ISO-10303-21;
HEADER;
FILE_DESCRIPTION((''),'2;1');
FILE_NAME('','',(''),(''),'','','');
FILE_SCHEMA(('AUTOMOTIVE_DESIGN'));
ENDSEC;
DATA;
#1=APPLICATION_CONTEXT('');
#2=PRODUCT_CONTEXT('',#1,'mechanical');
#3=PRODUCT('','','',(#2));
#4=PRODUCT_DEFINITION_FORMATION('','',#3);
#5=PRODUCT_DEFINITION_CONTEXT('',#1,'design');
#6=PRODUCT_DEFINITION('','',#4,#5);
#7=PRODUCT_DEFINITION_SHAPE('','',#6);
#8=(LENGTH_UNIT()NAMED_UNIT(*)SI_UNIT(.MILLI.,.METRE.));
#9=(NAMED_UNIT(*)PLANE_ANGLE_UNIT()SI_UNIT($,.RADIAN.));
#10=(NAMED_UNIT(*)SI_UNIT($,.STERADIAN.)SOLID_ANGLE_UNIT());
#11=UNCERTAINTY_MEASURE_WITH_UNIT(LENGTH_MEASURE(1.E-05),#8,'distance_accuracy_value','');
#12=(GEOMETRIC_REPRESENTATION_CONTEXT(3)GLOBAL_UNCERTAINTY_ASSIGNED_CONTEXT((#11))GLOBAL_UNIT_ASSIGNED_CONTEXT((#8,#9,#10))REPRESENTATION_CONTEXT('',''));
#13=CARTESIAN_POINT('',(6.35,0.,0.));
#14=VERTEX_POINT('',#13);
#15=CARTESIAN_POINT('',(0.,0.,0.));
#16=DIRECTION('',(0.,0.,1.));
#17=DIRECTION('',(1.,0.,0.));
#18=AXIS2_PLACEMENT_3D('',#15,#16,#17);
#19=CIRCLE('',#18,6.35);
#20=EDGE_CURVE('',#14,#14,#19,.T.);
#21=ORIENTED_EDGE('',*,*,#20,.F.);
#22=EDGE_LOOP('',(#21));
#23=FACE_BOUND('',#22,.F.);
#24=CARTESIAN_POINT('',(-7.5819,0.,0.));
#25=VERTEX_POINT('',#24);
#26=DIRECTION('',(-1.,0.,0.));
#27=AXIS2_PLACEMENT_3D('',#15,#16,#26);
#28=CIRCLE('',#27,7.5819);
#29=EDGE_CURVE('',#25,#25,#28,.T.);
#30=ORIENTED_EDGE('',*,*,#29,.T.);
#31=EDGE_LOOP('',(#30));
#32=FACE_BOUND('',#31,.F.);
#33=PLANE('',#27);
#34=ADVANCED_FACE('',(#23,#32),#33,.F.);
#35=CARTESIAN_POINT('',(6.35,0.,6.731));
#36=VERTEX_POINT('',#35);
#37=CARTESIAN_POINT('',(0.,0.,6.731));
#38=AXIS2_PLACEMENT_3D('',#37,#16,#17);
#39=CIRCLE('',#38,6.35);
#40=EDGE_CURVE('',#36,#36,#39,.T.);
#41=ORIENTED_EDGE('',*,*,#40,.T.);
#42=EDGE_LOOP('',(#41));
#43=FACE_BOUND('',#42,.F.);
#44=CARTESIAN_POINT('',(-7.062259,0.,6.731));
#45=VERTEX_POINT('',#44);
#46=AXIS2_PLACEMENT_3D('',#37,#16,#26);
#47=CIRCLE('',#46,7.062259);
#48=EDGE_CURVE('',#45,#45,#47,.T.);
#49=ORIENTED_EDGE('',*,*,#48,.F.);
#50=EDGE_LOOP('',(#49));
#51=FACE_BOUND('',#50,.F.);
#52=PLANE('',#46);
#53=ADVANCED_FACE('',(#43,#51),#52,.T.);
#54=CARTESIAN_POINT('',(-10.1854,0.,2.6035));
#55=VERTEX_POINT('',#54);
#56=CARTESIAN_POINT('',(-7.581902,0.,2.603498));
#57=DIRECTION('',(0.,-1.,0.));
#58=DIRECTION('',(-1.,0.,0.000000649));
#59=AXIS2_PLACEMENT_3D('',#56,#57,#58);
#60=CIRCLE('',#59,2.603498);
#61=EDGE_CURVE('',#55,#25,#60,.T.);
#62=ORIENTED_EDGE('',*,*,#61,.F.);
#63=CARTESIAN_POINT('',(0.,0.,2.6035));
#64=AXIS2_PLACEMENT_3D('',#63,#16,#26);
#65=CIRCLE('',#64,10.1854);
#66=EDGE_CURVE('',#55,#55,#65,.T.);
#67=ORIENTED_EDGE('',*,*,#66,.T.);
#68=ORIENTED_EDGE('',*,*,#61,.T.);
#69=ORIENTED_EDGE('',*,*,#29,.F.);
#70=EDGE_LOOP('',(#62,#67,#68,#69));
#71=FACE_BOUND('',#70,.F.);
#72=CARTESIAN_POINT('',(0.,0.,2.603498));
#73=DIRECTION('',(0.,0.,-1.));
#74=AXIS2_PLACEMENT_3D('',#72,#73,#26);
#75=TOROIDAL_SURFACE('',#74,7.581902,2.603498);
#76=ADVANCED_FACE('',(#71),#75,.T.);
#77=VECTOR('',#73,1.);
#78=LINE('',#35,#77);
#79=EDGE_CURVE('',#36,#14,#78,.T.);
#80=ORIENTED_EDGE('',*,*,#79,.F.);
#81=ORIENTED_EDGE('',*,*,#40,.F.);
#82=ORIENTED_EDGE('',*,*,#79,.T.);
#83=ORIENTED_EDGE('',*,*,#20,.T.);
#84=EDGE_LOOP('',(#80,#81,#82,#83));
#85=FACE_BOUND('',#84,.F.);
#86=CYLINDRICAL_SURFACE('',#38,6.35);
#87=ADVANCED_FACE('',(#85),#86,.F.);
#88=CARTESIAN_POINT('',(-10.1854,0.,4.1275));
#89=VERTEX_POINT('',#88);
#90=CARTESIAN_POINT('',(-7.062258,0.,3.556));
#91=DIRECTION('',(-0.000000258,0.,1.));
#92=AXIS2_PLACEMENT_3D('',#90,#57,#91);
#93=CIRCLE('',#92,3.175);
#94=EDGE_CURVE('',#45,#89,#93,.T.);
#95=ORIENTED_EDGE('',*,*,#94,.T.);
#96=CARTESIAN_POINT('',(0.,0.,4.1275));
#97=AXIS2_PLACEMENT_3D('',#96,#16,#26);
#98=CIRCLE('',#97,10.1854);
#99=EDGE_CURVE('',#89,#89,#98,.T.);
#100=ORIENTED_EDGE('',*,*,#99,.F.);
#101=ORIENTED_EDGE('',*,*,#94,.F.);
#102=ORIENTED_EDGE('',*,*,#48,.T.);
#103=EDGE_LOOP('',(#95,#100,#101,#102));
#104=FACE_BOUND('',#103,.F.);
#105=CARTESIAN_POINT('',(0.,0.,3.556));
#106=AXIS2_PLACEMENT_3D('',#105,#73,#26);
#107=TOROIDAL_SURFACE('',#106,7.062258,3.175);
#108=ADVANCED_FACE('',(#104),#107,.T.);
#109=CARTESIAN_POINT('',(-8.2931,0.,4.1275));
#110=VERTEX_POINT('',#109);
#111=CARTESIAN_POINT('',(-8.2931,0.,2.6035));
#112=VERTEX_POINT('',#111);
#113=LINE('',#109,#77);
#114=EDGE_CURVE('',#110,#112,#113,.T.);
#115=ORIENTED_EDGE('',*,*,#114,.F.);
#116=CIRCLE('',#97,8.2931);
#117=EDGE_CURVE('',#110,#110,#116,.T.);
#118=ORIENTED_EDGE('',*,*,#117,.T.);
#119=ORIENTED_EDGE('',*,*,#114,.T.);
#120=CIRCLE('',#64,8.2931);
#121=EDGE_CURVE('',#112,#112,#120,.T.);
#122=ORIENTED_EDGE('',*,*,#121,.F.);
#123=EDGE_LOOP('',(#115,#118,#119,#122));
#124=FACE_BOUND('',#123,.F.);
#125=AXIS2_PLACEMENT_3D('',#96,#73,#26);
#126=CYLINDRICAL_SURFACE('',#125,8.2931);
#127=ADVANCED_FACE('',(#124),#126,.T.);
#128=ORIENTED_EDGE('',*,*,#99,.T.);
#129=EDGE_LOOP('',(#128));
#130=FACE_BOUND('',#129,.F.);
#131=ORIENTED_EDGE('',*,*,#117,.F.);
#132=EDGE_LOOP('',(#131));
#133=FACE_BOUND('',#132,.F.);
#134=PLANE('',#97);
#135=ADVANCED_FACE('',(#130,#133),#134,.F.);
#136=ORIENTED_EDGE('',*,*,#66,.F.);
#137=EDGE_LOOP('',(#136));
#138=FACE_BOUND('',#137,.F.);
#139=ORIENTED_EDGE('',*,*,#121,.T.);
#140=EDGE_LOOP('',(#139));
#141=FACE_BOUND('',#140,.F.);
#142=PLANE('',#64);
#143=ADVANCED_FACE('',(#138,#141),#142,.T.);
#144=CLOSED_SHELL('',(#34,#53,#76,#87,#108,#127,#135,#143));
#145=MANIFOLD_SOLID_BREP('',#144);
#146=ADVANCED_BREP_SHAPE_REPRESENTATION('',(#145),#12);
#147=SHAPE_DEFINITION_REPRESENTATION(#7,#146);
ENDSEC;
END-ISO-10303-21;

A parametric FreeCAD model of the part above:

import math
import FreeCAD as App
import Part
import Sketcher

V = App.Vector
Q = App.Units.Quantity

doc = App.newDocument("Part")
body = doc.addObject("PartDesign::Body", "Body")

# Sketch on XZ plane
sketch1 = doc.addObject("Sketcher::SketchObject", "Sketch")
body.addObject(sketch1)
sketch1.AttachmentSupport = (doc.XZ_Plane, [""])
sketch1.MapMode = "FlatFace"
sketch1.addGeometry(Part.LineSegment(V(-7.6, 0, 0), V(0, 0, 0)), False)
sketch1.addGeometry(Part.LineSegment(V(0, 0, 0), V(0, 6.7, 0)), False)
sketch1.addGeometry(Part.LineSegment(V(0, 6.7, 0), V(-7.1, 6.7, 0)), False)
sketch1.addGeometry(Part.ArcOfCircle(Part.Circle(V(-7.1, 3.6, 0), V(0, 0, 1), 3.2), math.radians(90), math.radians(170)), False)
sketch1.addGeometry(Part.LineSegment(V(-10.2, 4.1, 0), V(-8.3, 4.1, 0)), False)
sketch1.addGeometry(Part.LineSegment(V(-8.3, 4.1, 0), V(-8.3, 2.6, 0)), False)
sketch1.addGeometry(Part.LineSegment(V(-8.3, 2.6, 0), V(-10.2, 2.6, 0)), False)
sketch1.addGeometry(Part.ArcOfCircle(Part.Circle(V(-7.6, 2.6, 0), V(0, 0, 1), 2.6), math.radians(180), math.radians(270)), False)
sketch1.addConstraint(Sketcher.Constraint("Coincident", 0, 2, 1, 1))
sketch1.addConstraint(Sketcher.Constraint("Coincident", 1, 2, 2, 1))
sketch1.addConstraint(Sketcher.Constraint("Tangent", 2, 2, 3, 1))
sketch1.addConstraint(Sketcher.Constraint("Coincident", 3, 2, 4, 1))
sketch1.addConstraint(Sketcher.Constraint("Coincident", 4, 2, 5, 1))
sketch1.addConstraint(Sketcher.Constraint("Coincident", 5, 2, 6, 1))
sketch1.addConstraint(Sketcher.Constraint("Coincident", 6, 2, 7, 1))
sketch1.addConstraint(Sketcher.Constraint("Tangent", 7, 2, 0, 1))
sketch1.addConstraint(Sketcher.Constraint("Horizontal", 0))
sketch1.addConstraint(Sketcher.Constraint("Vertical", 1))
sketch1.addConstraint(Sketcher.Constraint("Horizontal", 2))
sketch1.addConstraint(Sketcher.Constraint("Horizontal", 4))
sketch1.addConstraint(Sketcher.Constraint("Vertical", 5))
sketch1.addConstraint(Sketcher.Constraint("Horizontal", 6))
sketch1.addConstraint(Sketcher.Constraint("Coincident", 0, 2, -1, 1))
sketch1.addConstraint(Sketcher.Constraint("Horizontal", 7, 3, 5, 2))
sketch1.addConstraint(Sketcher.Constraint("Vertical", 3, 2, 6, 2))
sketch1.addConstraint(Sketcher.Constraint("Radius", 3, Q("0.125 in")))
sketch1.addConstraint(Sketcher.Constraint("DistanceY", 5, 2, 5, 1, Q("0.06 in")))
sketch1.addConstraint(Sketcher.Constraint("Radius", 7, Q("0.1024999 in")))
sketch1.addConstraint(Sketcher.Constraint("DistanceY", 1, 1, 1, 2, Q("0.265 in")))
sketch1.addConstraint(Sketcher.Constraint("DistanceX", 0, 1, 0, 2, Q("0.2985 in")))
sketch1.addConstraint(Sketcher.Constraint("DistanceX", 4, 1, 4, 2, Q("0.0745 in")))
revolution = doc.addObject("PartDesign::Revolution", "Revolution")
body.addObject(revolution)
revolution.Profile = sketch1
revolution.ReferenceAxis = (sketch1, ["V_Axis"])
revolution.Angle = 360

# Sketch on XY plane
sketch2 = doc.addObject("Sketcher::SketchObject", "Sketch001")
body.addObject(sketch2)
sketch2.AttachmentSupport = (doc.XY_Plane, [""])
sketch2.MapMode = "FlatFace"
sketch2.AttachmentOffset = App.Placement(V(0, 0, 0.265 * 25.4), App.Rotation())
sketch2.addGeometry(Part.Circle(V(0, 0, 0), V(0, 0, 1), 6), False)
sketch2.addConstraint(Sketcher.Constraint("Coincident", 0, 3, -1, 1))
sketch2.addConstraint(Sketcher.Constraint("Diameter", 0, Q("0.5 in")))
pocket1 = doc.addObject("PartDesign::Pocket", "Pocket")
body.addObject(pocket1)
pocket1.Profile = sketch2
pocket1.Type = "ThroughAll"

doc.recompute()
